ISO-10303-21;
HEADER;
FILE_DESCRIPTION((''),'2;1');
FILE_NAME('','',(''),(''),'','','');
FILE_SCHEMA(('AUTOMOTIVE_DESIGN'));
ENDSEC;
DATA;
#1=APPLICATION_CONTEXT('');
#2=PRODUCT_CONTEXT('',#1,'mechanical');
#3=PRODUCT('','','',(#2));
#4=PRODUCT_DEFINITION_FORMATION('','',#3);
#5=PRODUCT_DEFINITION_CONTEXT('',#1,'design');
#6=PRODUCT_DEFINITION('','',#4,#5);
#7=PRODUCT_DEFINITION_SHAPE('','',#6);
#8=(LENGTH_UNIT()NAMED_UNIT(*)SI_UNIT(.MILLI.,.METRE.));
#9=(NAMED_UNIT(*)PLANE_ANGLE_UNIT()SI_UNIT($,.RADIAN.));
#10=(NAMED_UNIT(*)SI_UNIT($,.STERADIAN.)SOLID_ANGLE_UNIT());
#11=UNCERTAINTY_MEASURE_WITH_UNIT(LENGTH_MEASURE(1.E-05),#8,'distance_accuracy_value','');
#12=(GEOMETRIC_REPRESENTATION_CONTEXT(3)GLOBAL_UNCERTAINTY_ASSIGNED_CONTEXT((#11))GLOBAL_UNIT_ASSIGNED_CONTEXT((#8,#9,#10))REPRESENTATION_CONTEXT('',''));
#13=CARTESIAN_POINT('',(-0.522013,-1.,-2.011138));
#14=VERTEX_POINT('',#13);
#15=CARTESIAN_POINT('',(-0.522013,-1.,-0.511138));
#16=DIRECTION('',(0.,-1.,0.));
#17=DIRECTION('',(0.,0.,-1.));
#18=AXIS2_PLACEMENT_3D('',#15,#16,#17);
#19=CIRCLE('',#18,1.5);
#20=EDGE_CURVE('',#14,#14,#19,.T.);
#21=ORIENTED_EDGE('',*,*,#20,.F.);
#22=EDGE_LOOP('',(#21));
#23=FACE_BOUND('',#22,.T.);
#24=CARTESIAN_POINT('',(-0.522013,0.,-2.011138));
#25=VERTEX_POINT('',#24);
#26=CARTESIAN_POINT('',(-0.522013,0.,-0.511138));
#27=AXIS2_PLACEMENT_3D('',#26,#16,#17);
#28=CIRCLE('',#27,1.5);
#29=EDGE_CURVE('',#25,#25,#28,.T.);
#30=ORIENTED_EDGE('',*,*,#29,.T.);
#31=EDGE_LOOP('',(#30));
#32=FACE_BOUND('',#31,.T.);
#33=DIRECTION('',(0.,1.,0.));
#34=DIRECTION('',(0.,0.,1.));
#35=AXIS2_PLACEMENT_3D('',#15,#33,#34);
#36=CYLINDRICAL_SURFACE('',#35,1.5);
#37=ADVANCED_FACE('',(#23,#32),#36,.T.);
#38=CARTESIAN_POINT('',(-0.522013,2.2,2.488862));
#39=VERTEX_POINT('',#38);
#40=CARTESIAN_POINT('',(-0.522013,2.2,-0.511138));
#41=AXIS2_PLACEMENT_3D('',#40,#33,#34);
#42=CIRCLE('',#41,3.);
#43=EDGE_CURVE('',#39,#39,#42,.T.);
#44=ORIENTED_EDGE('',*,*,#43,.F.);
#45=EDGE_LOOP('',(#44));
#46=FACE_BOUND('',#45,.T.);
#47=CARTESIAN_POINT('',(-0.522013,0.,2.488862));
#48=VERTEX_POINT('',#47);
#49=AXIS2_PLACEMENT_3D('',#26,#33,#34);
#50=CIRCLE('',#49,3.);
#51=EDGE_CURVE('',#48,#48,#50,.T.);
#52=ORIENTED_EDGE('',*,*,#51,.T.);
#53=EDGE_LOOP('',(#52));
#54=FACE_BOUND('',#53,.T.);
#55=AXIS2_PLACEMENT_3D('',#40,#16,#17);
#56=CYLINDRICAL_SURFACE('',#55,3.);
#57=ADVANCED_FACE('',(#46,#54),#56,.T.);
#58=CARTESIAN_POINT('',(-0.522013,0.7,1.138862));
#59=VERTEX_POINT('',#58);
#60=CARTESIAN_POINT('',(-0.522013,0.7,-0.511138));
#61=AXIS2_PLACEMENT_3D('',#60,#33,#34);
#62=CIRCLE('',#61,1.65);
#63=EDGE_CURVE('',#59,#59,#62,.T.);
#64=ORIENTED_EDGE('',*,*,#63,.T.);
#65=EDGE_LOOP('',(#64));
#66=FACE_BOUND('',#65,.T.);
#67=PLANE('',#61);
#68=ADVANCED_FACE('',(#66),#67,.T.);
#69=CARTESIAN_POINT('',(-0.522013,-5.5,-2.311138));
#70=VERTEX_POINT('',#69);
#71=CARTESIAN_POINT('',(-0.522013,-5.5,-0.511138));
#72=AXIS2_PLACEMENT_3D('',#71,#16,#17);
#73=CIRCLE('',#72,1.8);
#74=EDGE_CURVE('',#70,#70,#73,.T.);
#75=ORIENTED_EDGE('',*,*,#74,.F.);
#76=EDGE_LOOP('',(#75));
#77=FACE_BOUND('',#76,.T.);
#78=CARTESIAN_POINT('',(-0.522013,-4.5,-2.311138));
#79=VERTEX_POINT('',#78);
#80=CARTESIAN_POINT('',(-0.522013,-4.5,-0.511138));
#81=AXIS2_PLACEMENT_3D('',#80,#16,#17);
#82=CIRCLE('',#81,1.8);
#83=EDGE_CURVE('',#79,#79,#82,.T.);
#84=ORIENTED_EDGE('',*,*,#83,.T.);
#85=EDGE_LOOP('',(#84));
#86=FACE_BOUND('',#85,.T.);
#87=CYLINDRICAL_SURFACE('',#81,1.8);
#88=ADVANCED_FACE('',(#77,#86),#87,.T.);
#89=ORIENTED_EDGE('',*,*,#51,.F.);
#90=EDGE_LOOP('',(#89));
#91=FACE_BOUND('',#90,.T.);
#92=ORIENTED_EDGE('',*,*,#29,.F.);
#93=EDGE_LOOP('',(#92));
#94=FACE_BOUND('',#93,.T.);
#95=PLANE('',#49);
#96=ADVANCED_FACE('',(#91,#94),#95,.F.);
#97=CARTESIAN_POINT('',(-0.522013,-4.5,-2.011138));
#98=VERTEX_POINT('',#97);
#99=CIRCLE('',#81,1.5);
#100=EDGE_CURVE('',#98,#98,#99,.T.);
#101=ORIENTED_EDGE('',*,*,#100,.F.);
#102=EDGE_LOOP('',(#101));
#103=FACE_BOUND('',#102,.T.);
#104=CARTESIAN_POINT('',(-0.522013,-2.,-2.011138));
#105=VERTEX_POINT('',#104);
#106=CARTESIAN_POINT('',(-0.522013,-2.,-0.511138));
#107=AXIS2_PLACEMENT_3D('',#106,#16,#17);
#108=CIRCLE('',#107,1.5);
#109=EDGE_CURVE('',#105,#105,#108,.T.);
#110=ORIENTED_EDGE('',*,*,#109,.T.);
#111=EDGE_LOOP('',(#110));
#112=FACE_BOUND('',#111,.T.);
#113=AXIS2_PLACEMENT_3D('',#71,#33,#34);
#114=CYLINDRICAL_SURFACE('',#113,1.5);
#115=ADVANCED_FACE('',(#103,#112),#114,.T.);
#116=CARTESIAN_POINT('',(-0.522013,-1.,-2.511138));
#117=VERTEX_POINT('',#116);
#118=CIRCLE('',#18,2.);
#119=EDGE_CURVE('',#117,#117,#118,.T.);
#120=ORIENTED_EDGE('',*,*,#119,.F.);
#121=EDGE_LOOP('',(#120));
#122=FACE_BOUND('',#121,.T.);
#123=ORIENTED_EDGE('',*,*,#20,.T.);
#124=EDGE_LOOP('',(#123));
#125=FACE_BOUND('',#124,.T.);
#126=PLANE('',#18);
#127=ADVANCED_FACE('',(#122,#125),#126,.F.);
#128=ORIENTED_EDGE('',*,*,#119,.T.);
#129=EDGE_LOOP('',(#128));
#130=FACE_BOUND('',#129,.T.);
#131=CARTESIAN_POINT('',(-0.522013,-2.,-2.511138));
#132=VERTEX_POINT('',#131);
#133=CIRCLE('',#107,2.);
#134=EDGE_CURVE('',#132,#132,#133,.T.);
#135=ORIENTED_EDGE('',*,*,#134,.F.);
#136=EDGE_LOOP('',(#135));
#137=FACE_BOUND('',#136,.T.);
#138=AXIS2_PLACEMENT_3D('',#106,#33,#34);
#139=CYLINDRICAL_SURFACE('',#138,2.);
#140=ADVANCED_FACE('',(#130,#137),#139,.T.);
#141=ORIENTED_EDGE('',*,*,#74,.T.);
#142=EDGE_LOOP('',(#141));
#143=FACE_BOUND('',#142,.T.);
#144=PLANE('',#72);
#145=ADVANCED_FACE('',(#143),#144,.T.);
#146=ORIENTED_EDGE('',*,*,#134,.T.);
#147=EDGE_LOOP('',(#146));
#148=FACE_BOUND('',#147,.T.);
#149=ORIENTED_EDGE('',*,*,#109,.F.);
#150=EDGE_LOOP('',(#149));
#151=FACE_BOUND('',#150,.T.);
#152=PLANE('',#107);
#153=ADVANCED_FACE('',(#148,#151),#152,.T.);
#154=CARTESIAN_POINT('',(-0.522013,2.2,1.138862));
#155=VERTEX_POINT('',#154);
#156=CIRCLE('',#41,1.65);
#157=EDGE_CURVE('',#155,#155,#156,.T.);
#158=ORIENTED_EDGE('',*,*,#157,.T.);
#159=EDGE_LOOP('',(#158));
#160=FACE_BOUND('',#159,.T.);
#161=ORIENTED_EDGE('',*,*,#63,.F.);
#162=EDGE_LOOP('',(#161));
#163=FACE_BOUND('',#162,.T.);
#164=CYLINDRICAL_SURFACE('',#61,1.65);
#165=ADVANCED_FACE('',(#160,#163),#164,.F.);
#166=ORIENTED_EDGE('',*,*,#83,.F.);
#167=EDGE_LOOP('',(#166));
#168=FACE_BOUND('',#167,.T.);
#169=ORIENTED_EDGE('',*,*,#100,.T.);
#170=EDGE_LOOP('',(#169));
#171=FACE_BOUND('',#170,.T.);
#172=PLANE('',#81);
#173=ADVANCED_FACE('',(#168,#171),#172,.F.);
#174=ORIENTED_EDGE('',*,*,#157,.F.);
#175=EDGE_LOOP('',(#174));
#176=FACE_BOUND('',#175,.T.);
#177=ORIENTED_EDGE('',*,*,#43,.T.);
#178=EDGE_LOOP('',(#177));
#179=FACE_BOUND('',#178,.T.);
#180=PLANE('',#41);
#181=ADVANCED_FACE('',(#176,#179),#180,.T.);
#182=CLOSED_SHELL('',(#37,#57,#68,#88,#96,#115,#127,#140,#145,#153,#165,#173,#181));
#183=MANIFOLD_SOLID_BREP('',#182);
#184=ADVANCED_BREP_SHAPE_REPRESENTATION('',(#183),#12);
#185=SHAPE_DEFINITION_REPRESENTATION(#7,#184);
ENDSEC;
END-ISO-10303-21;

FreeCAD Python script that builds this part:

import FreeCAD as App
import Part
import Sketcher

V = App.Vector
Q = App.Units.Quantity

doc = App.newDocument("Part")
body = doc.addObject("PartDesign::Body", "Body")

sketch1 = body.newObject("Sketcher::SketchObject", "Sketch")
sketch1.AttachmentSupport = (doc.getObject("XZ_Plane"), [""])
sketch1.MapMode = "FlatFace"
sketch1.addGeometry(Part.Circle(V(-0.5, -0.5, 0), V(0, 0, 1), 3), False)
sketch1.addConstraint([
    Sketcher.Constraint("Diameter", 0, Q("6 mm")),
    Sketcher.Constraint("DistanceY", 0, 3, -1, 1, Q("0.511138 mm")),
    Sketcher.Constraint("DistanceX", 0, 3, -1, 1, Q("0.522013 mm")),
])
pad1 = body.newObject("PartDesign::Pad", "Pad")
pad1.Profile = sketch1
pad1.Length = 2.2
pad1.Reversed = True

sketch2 = body.newObject("Sketcher::SketchObject", "Sketch001")
sketch2.AttachmentSupport = (doc.getObject("XZ_Plane"), [""])
sketch2.MapMode = "FlatFace"
sketch2.addGeometry(Part.Circle(V(-0.5, -0.5, 0), V(0, 0, 1), 1.6), False)
sketch2.addConstraint([
    Sketcher.Constraint("Diameter", 0, Q("3.2 mm")),
    Sketcher.Constraint("DistanceY", 0, 3, -1, 1, Q("0.511138 mm")),
    Sketcher.Constraint("DistanceX", 0, 3, -1, 1, Q("0.522013 mm")),
])
pad2 = body.newObject("PartDesign::Pad", "Pad001")
pad2.Profile = sketch2
pad2.Length = 1
pad2.Reversed = True

sketch3 = body.newObject("Sketcher::SketchObject", "Sketch002")
sketch3.AttachmentSupport = (doc.getObject("XZ_Plane"), [""])
sketch3.MapMode = "FlatFace"
sketch3.addGeometry(Part.Circle(V(-0.5, -0.5, 0), V(0, 0, 1), 1.5), False)
sketch3.addConstraint([
    Sketcher.Constraint("Diameter", 0, Q("3 mm")),
    Sketcher.Constraint("DistanceY", 0, 3, -1, 1, Q("0.511138 mm")),
    Sketcher.Constraint("DistanceX", 0, 3, -1, 1, Q("0.522013 mm")),
])
pad3 = body.newObject("PartDesign::Pad", "Pad002")
pad3.Profile = sketch3
pad3.Length = 1

sketch4 = body.newObject("Sketcher::SketchObject", "Sketch003")
sketch4.AttachmentSupport = (doc.getObject("XZ_Plane"), [""])
sketch4.MapMode = "FlatFace"
sketch4.AttachmentOffset = App.Placement(V(0, 0, 1), App.Rotation())
sketch4.addGeometry(Part.Circle(V(-0.5, -0.5, 0), V(0, 0, 1), 2), False)
sketch4.addConstraint([
    Sketcher.Constraint("Diameter", 0, Q("4 mm")),
    Sketcher.Constraint("DistanceY", 0, 3, -1, 1, Q("0.511138 mm")),
    Sketcher.Constraint("DistanceX", 0, 3, -1, 1, Q("0.522013 mm")),
])
pad4 = body.newObject("PartDesign::Pad", "Pad003")
pad4.Profile = sketch4
pad4.Length = 1

sketch5 = body.newObject("Sketcher::SketchObject", "Sketch004")
sketch5.AttachmentSupport = (doc.getObject("XZ_Plane"), [""])
sketch5.MapMode = "FlatFace"
sketch5.AttachmentOffset = App.Placement(V(0, 0, 2), App.Rotation())
sketch5.addGeometry(Part.Circle(V(-0.5, -0.5, 0), V(0, 0, 1), 1.5), False)
sketch5.addConstraint([
    Sketcher.Constraint("Diameter", 0, Q("3 mm")),
    Sketcher.Constraint("DistanceY", 0, 3, -1, 1, Q("0.511138 mm")),
    Sketcher.Constraint("DistanceX", 0, 3, -1, 1, Q("0.522013 mm")),
])
pad5 = body.newObject("PartDesign::Pad", "Pad004")
pad5.Profile = sketch5
pad5.Length = 3.5

sketch6 = body.newObject("Sketcher::SketchObject", "Sketch005")
sketch6.AttachmentSupport = (doc.getObject("XZ_Plane"), [""])
sketch6.MapMode = "FlatFace"
sketch6.AttachmentOffset = App.Placement(V(0, 0, 5.5), App.Rotation())
sketch6.addGeometry(Part.Circle(V(-0.5, -0.5, 0), V(0, 0, 1), 1.8), False)
sketch6.addConstraint([
    Sketcher.Constraint("Diameter", 0, Q("3.6 mm")),
    Sketcher.Constraint("DistanceY", 0, 3, -1, 1, Q("0.511138 mm")),
    Sketcher.Constraint("DistanceX", 0, 3, -1, 1, Q("0.522013 mm")),
])
pad6 = body.newObject("PartDesign::Pad", "Pad005")
pad6.Profile = sketch6
pad6.Length = 1
pad6.Reversed = True

sketch7 = body.newObject("Sketcher::SketchObject", "Sketch006")
sketch7.AttachmentSupport = (doc.getObject("XZ_Plane"), [""])
sketch7.MapMode = "FlatFace"
sketch7.AttachmentOffset = App.Placement(V(0, 0, -2.2), App.Rotation())
sketch7.addGeometry(Part.Circle(V(-0.5, -0.5, 0), V(0, 0, 1), 1.6), False)
sketch7.addConstraint([
    Sketcher.Constraint("Diameter", 0, Q("3.3 mm")),
    Sketcher.Constraint("DistanceY", 0, 3, -1, 1, Q("0.511138 mm")),
    Sketcher.Constraint("DistanceX", 0, 3, -1, 1, Q("0.522013 mm")),
])
pocket1 = body.newObject("PartDesign::Pocket", "Pocket")
pocket1.Profile = sketch7
pocket1.Length = 1.5
pocket1.Reversed = True

doc.recompute()
